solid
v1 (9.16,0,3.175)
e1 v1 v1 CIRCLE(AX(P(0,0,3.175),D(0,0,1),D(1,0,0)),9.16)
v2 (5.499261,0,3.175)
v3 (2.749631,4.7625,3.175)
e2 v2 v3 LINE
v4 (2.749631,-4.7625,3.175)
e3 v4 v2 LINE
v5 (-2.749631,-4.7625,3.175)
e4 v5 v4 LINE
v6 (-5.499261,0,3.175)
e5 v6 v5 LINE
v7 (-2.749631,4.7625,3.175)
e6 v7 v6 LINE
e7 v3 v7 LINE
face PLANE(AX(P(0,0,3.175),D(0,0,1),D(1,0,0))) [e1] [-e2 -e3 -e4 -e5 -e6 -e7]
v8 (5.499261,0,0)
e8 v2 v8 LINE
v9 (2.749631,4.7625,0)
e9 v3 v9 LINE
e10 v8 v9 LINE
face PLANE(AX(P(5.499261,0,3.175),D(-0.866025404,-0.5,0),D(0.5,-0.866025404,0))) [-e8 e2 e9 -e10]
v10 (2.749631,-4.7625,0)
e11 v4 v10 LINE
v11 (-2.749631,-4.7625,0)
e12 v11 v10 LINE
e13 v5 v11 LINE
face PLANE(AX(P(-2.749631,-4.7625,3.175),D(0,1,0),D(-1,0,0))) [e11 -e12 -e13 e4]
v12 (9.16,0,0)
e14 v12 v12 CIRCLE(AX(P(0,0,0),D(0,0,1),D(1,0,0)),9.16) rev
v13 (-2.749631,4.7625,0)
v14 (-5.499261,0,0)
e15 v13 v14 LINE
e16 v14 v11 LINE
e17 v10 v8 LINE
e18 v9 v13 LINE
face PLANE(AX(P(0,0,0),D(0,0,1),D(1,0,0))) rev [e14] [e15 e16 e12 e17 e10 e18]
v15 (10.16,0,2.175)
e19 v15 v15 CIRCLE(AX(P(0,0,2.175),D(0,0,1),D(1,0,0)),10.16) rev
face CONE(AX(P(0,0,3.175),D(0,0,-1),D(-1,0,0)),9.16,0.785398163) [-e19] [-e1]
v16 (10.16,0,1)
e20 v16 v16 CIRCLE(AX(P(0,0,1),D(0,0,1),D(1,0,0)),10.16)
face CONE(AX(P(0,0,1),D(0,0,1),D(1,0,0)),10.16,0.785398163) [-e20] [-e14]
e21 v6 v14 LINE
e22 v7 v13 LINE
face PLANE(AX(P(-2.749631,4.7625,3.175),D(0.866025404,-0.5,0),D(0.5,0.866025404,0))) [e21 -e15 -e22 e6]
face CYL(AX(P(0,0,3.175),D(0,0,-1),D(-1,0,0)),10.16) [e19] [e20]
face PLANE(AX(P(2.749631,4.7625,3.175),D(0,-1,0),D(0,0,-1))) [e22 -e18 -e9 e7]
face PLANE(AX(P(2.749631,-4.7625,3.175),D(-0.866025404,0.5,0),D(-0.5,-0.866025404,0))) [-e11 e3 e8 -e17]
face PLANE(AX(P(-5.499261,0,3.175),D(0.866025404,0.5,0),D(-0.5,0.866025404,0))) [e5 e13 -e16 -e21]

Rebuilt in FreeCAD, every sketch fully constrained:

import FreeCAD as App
import Part
import Sketcher

V = App.Vector
Q = App.Units.Quantity


def edges_at(feature, points):
    """Names of the edges that pass closest to the given points."""
    edges = feature.Shape.Edges
    near = lambda p: min(range(len(edges)), key=lambda i: edges[i].distToShape(Part.Vertex(*p))[0])
    return sorted({f"Edge{near(p) + 1}" for p in points})

doc = App.newDocument("Part")
body = doc.addObject("PartDesign::Body", "Body")

# Sketch on XY plane
sketch1 = body.newObject("Sketcher::SketchObject", "Sketch")
sketch1.AttachmentSupport = (doc.getObject("XY_Plane"), [""])
sketch1.MapMode = "FlatFace"
sketch1.addGeometry([
    Part.Circle(V(0, 0, 0), V(0, 0, 1), 10),  # 0
    Part.LineSegment(V(3, 5, 0), V(5, 0, 0)),  # 1
    Part.LineSegment(V(5, 0, 0), V(3, -5, 0)),  # 2
    Part.LineSegment(V(3, -5, 0), V(-3, -5, 0)),  # 3
    Part.LineSegment(V(-3, -5, 0), V(-5, 0, 0)),  # 4
    Part.LineSegment(V(-5, 0, 0), V(-3, 5, 0)),  # 5
    Part.LineSegment(V(-3, 5, 0), V(3, 5, 0)),  # 6
], False)
sketch1.addConstraint([
    Sketcher.Constraint("Coincident", 1, 2, 2, 1),
    Sketcher.Constraint("Coincident", 2, 2, 3, 1),
    Sketcher.Constraint("Coincident", 3, 2, 4, 1),
    Sketcher.Constraint("Coincident", 4, 2, 5, 1),
    Sketcher.Constraint("Coincident", 5, 2, 6, 1),
    Sketcher.Constraint("Coincident", 6, 2, 1, 1),
    Sketcher.Constraint("Horizontal", 3),
    Sketcher.Constraint("Horizontal", 6),
    Sketcher.Constraint("Coincident", 0, 3, -1, 1),
    Sketcher.Constraint("Symmetric", 1, 2, 4, 2, -1, 1),
    Sketcher.Constraint("Symmetric", 2, 2, 5, 2, -1, 1),
    Sketcher.Constraint("PointOnObject", 1, 2, -1),
    Sketcher.Constraint("Parallel", 1, 4),
    Sketcher.Constraint("Vertical", 3, 2, 5, 2),
    Sketcher.Constraint("Diameter", 0, Q("0.8 in")),
    Sketcher.Constraint("Angle", 1, Q("-60 deg")),
    Sketcher.Constraint("DistanceY", 2, 2, -1, 1, Q("0.1875 in")),
    Sketcher.Constraint("DistanceX", 3, 2, 3, 1, Q("5.499261 mm")),
])
pad1 = body.newObject("PartDesign::Pad", "Pad")
pad1.Profile = sketch1
pad1.Length = Q("0.125 in")
doc.recompute()

chamfer = body.newObject("PartDesign::Chamfer", "Chamfer")
chamfer.Base = (pad1, edges_at(pad1, [(-10.16, 0, 0), (-10.16, 0, 3.175)]))
chamfer.Size = 1

doc.recompute()
